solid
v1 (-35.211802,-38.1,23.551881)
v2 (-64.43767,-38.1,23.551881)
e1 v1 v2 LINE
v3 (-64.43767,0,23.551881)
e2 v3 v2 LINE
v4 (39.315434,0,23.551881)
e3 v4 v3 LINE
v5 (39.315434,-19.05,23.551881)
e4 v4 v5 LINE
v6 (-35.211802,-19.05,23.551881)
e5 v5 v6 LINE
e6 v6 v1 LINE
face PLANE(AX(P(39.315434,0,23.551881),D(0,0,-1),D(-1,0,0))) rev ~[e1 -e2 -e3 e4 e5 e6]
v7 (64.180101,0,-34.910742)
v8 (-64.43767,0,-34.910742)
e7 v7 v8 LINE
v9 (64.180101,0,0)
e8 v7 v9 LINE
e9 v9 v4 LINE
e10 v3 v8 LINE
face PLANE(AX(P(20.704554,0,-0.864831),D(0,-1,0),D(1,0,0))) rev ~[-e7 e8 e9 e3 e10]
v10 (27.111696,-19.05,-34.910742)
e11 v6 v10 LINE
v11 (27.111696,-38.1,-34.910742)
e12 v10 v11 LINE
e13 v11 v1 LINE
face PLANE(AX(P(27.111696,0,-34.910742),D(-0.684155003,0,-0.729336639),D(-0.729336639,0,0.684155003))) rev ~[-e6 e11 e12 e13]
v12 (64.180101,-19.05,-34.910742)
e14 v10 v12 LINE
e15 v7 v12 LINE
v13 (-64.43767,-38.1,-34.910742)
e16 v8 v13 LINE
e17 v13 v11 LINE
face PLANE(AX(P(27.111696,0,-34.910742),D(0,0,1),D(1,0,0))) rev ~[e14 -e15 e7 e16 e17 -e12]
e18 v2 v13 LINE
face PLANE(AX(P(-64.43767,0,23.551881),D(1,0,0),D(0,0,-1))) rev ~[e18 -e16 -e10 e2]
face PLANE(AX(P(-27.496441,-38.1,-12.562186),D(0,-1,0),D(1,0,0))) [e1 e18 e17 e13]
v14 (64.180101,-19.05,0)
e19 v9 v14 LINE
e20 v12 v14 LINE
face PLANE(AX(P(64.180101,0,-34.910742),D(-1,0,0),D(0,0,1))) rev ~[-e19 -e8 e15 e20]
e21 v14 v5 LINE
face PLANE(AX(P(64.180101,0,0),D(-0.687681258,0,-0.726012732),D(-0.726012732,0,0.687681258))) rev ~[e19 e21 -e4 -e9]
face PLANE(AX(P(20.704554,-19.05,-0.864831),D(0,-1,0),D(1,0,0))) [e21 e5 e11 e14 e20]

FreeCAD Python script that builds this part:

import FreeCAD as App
import Part
import Sketcher
from FreeCAD import Vector
Q = App.Units.Quantity


def add_polygon(sketch, points):
    """Adds a closed chain of lines whose ends are joined by coincident constraints."""
    first, n = sketch.GeometryCount, len(points)
    for a, b in zip(points, points[1:] + points[:1]):
        sketch.addGeometry(Part.LineSegment(App.Vector(*a, 0), App.Vector(*b, 0)), False)
    for i in range(n):
        sketch.addConstraint(Sketcher.Constraint("Coincident", first + i, 2, first + (i + 1) % n, 1))

doc = App.newDocument("Part")
body = doc.addObject("PartDesign::Body", "Body")

# Sketch on XZ plane
sketch1 = body.newObject("Sketcher::SketchObject", "Sketch")
sketch1.AttachmentSupport = (doc.getObject("XZ_Plane"), [""])
sketch1.MapMode = "FlatFace"
add_polygon(sketch1, [(-35, 24), (-64, 24), (-64, -35), (27, -35)])  # lines 0-3
sketch1.addConstraint([
    Sketcher.Constraint("Horizontal", 0),
    Sketcher.Constraint("Vertical", 1),
    Sketcher.Constraint("Horizontal", 2),
    Sketcher.Constraint("DistanceX", 0, 2, 0, 1, Q("29.225868 mm")),
    Sketcher.Constraint("DistanceX", 2, 1, 2, 2, Q("91.549366 mm")),
    Sketcher.Constraint("DistanceY", 1, 2, 1, 1, Q("58.462623 mm")),
    Sketcher.Constraint("DistanceX", 0, 2, -1, 1, Q("64.43767 mm")),
    Sketcher.Constraint("DistanceY", -1, 1, 0, 2, Q("23.551881 mm")),
])
pad1 = body.newObject("PartDesign::Pad", "Pad")
pad1.Profile = sketch1
pad1.Length = Q("1.5 in")

# Sketch on XZ plane
sketch2 = body.newObject("Sketcher::SketchObject", "Sketch001")
sketch2.AttachmentSupport = (doc.getObject("XZ_Plane"), [""])
sketch2.MapMode = "FlatFace"
add_polygon(sketch2, [(39, 24), (-35, 24), (27, -35), (64, -35), (64, 0)])  # lines 0-4
sketch2.addConstraint([
    Sketcher.Constraint("Horizontal", 0),
    Sketcher.Constraint("Horizontal", 2),
    Sketcher.Constraint("Vertical", 3),
    Sketcher.Constraint("PointOnObject", 3, 2, -1),
    Sketcher.Constraint("DistanceX", -1, 1, 2, 2, Q("64.180101 mm")),
    Sketcher.Constraint("Distance", 4, Q("34.248252 mm")),
    Sketcher.Constraint("DistanceX", 0, 2, 0, 1, Q("74.527236 mm")),
    Sketcher.Constraint("DistanceX", 2, 1, 2, 2, Q("37.068405 mm")),
    Sketcher.Constraint("DistanceY", 3, 1, 3, 2, Q("34.910742 mm")),
    Sketcher.Constraint("DistanceY", -1, 1, 0, 2, Q("23.551881 mm")),
])
pad2 = body.newObject("PartDesign::Pad", "Pad001")
pad2.Profile = sketch2
pad2.Length = Q("0.75 in")

doc.recompute()
